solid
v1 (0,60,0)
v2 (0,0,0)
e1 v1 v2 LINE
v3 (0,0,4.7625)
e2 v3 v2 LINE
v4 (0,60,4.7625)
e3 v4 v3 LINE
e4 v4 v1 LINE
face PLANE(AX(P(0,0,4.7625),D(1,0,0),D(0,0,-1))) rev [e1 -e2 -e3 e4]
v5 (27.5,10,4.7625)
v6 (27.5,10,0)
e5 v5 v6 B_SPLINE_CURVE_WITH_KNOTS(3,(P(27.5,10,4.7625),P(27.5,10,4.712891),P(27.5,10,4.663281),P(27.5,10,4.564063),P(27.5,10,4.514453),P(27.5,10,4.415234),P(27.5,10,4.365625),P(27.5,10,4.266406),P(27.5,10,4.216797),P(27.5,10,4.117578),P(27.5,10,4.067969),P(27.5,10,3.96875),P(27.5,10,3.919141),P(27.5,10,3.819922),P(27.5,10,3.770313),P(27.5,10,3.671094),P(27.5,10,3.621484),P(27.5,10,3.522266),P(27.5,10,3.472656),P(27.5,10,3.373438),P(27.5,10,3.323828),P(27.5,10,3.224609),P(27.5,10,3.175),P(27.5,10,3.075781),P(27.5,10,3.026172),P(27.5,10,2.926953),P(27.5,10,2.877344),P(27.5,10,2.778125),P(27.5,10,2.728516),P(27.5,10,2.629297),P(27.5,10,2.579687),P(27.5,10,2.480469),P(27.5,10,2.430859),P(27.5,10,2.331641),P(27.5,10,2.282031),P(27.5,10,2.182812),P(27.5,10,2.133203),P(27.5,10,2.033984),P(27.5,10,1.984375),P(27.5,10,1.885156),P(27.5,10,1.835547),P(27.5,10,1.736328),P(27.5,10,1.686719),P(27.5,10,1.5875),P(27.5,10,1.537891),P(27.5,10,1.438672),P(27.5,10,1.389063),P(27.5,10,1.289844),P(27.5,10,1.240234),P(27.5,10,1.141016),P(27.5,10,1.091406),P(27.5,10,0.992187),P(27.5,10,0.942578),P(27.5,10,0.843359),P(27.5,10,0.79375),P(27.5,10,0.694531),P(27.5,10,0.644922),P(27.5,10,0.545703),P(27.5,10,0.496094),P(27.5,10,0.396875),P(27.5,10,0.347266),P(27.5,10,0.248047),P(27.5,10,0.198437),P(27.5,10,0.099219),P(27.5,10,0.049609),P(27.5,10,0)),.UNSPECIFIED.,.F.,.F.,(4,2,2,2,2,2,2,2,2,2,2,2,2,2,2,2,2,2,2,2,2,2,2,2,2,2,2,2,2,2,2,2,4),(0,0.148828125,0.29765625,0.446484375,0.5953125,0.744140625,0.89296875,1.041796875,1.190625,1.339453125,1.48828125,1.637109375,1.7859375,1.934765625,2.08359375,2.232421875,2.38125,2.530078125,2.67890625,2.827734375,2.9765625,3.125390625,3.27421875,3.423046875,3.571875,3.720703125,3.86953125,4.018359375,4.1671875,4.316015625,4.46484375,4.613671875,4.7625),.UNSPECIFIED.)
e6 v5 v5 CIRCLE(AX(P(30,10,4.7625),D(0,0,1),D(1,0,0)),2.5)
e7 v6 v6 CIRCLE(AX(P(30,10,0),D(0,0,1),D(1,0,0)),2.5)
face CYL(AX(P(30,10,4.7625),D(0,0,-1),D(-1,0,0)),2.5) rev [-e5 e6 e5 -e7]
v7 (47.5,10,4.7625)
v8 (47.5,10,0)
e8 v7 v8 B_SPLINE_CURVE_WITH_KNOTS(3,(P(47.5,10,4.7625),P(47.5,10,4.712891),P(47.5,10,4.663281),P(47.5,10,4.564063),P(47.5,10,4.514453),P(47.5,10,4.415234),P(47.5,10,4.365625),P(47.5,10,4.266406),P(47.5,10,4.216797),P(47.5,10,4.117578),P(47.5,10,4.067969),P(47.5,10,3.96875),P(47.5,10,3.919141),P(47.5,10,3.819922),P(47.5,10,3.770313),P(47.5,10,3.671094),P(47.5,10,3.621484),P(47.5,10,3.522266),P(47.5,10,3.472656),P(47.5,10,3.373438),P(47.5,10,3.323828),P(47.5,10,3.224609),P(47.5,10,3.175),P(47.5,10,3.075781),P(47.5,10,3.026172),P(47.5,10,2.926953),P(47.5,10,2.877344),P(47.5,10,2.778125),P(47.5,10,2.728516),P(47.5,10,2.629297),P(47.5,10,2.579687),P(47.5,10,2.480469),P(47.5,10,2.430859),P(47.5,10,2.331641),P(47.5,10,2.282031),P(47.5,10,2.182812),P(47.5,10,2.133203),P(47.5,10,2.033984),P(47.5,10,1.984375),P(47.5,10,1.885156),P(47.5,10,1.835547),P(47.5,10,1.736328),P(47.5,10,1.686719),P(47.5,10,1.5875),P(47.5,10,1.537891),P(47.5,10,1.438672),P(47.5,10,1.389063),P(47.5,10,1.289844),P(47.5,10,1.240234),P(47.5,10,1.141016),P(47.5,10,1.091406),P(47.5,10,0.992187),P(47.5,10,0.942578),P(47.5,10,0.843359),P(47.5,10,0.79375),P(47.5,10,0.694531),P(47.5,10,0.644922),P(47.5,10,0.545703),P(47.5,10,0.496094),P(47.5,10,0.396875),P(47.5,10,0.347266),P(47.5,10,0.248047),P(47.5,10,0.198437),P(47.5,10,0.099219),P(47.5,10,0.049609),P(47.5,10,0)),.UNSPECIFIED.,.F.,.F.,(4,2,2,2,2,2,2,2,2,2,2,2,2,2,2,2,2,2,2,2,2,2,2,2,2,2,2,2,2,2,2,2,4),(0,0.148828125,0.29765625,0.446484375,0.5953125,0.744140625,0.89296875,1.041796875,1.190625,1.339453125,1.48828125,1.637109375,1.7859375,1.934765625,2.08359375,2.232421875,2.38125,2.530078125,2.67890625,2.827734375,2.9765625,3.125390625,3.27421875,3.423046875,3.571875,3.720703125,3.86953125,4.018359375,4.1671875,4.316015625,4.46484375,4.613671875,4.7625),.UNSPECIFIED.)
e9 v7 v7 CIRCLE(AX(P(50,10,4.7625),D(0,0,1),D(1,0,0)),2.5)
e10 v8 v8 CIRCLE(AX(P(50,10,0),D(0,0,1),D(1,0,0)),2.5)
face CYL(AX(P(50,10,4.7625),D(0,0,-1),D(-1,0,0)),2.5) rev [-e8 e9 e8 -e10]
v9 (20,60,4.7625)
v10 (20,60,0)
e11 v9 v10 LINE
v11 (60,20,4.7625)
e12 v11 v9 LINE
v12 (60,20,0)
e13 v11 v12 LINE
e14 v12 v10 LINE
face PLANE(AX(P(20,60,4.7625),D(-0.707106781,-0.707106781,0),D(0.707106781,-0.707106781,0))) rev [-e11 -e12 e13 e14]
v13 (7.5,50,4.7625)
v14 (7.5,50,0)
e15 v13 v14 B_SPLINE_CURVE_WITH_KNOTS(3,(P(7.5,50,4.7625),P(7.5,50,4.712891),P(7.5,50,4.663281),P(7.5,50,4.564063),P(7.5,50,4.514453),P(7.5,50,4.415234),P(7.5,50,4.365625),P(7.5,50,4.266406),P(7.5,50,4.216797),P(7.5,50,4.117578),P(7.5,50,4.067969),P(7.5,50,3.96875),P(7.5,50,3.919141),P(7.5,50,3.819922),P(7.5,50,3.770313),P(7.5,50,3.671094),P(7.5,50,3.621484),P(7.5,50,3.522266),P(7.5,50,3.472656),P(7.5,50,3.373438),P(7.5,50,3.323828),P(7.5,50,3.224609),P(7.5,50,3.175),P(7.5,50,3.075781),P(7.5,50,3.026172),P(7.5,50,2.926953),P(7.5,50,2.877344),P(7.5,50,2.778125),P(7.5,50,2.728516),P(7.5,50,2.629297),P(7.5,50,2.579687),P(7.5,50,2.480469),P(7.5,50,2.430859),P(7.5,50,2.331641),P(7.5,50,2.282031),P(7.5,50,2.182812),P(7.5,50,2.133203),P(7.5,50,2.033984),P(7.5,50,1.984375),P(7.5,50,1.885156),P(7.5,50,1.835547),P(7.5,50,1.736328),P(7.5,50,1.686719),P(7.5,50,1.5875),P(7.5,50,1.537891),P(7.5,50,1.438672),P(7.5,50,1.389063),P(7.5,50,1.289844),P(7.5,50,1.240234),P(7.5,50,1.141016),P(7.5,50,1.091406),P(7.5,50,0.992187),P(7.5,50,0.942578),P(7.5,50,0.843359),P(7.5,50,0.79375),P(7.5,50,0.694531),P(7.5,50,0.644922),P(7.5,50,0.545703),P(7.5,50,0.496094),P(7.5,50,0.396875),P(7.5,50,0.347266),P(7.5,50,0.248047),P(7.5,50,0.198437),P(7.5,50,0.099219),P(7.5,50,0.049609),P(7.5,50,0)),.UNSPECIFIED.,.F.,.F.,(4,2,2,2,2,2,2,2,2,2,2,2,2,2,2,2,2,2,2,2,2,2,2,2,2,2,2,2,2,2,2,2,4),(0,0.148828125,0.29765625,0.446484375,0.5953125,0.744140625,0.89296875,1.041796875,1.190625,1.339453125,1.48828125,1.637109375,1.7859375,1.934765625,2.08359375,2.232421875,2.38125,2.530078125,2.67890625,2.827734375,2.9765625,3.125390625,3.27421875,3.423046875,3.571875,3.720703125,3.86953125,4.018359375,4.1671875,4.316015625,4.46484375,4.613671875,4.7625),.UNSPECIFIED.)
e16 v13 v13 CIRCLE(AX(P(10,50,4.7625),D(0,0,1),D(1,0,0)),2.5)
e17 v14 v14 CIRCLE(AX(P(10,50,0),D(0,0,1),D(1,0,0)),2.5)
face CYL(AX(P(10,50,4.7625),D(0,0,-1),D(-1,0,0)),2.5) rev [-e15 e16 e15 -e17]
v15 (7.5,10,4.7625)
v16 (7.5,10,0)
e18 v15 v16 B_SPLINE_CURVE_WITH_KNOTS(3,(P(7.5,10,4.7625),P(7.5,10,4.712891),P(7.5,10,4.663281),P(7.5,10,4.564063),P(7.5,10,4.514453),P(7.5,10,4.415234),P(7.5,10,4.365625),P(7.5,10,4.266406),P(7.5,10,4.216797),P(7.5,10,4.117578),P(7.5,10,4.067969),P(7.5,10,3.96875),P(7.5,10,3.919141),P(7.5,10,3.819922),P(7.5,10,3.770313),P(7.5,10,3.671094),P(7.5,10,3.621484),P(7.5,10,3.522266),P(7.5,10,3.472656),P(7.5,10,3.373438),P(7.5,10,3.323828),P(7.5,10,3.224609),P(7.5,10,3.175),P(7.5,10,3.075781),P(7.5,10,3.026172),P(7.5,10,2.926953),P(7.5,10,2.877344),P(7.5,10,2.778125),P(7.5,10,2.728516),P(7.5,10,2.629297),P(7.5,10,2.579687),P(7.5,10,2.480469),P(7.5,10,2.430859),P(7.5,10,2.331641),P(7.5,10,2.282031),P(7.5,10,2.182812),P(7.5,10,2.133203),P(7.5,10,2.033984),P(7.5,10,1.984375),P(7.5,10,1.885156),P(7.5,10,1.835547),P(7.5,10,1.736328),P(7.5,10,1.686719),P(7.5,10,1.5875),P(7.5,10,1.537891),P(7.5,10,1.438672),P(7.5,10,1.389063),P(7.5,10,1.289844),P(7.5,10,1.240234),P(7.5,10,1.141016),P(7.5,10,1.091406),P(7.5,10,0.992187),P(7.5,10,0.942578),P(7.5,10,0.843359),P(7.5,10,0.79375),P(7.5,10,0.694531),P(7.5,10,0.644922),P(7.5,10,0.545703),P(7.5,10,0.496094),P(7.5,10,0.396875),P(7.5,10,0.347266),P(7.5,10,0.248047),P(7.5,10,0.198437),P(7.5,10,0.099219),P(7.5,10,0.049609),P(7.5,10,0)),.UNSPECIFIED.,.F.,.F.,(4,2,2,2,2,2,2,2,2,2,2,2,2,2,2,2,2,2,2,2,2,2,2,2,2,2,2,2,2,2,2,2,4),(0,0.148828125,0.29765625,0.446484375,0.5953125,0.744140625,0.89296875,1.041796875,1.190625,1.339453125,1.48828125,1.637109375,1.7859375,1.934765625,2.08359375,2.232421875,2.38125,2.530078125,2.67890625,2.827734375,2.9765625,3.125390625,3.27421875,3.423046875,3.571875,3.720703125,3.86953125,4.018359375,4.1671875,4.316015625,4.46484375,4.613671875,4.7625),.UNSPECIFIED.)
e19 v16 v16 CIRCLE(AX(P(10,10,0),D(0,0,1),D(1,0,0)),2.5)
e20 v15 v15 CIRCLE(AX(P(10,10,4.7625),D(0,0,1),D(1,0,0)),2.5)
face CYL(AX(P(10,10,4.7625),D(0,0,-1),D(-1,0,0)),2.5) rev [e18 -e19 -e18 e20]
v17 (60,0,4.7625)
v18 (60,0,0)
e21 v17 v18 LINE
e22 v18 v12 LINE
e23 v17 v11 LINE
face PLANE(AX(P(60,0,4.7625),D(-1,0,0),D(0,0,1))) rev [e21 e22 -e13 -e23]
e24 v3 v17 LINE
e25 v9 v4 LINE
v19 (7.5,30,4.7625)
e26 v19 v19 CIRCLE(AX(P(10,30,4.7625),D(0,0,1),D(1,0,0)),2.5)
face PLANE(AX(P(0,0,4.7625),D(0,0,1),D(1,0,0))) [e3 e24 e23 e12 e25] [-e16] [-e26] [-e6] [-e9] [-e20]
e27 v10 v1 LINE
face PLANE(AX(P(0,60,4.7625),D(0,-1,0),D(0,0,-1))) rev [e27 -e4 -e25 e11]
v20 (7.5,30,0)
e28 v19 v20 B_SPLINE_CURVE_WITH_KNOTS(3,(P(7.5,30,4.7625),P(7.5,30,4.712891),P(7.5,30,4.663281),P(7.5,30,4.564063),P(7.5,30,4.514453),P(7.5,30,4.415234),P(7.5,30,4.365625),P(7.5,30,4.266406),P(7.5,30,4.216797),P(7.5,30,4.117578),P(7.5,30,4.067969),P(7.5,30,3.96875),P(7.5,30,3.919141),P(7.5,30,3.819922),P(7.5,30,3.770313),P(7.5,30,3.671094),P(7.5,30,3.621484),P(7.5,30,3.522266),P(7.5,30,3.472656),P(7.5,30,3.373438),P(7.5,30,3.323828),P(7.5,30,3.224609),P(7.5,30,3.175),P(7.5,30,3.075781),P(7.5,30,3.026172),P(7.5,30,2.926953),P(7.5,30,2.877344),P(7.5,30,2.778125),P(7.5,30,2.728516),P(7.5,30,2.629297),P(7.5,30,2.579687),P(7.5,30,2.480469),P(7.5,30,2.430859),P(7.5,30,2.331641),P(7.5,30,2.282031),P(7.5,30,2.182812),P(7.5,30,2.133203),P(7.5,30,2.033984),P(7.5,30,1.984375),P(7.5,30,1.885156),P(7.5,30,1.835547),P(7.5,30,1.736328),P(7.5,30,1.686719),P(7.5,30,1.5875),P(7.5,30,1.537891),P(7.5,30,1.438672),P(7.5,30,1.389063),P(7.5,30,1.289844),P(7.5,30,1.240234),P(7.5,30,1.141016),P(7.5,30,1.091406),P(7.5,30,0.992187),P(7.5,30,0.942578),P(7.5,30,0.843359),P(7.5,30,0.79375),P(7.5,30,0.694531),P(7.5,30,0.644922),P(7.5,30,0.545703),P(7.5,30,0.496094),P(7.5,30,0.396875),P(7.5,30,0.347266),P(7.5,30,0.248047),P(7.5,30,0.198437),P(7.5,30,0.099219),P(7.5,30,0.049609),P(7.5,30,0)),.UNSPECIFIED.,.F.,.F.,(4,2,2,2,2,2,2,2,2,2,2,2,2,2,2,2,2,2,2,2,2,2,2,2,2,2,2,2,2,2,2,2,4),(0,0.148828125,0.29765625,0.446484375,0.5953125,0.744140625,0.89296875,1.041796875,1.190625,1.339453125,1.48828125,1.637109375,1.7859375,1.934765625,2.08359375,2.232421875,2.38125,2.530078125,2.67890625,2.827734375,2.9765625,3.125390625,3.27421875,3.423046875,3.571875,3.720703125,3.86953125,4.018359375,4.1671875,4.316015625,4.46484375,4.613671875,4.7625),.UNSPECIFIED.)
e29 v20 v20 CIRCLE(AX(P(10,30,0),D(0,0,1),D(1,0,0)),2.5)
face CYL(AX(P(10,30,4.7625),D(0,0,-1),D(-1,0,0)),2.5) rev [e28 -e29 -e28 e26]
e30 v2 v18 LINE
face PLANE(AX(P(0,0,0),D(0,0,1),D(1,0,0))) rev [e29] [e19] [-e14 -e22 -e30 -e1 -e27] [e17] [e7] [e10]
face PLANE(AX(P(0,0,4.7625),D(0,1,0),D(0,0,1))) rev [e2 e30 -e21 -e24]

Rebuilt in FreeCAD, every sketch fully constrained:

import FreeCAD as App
import Part
import Sketcher

doc = App.newDocument("Part")
params = doc.addObject("Spreadsheet::Sheet", "Params")
for row, (alias, value) in enumerate([
    ("sketch1_diameter", "5 mm"),
    ("sketch1_width", "60 mm"),
    ("sketch1_width2", "20 mm"),
    ("pad1_length", "4.7625 mm"),
], start=1):
    params.set(f"A{row}", alias)
    params.set(f"B{row}", "=" + value)
    params.setAlias(f"B{row}", alias)

body = doc.addObject("PartDesign::Body", "Body")

sketch1 = body.newObject("Sketcher::SketchObject", "Sketch")
sketch1.AttachmentSupport = (doc.getObject("XY_Plane"), [""])
sketch1.MapMode = "FlatFace"
sketch1.addGeometry([
    Part.LineSegment(App.Vector(0, 60, 0), App.Vector(0, 0, 0)),
    Part.LineSegment(App.Vector(0, 0, 0), App.Vector(60, 0, 0)),
    Part.LineSegment(App.Vector(60, 0, 0), App.Vector(60, 20, 0)),
    Part.LineSegment(App.Vector(60, 20, 0), App.Vector(20, 60, 0)),
    Part.LineSegment(App.Vector(20, 60, 0), App.Vector(0, 60, 0)),
    Part.Circle(App.Vector(50, 10, 0), App.Vector(0, 0, 1), 2.5),
    Part.Circle(App.Vector(30, 10, 0), App.Vector(0, 0, 1), 2.5),
    Part.Circle(App.Vector(10, 10, 0), App.Vector(0, 0, 1), 2.5),
    Part.Circle(App.Vector(10, 30, 0), App.Vector(0, 0, 1), 2.5),
    Part.Circle(App.Vector(10, 50, 0), App.Vector(0, 0, 1), 2.5),
], False)
sketch1.addConstraint([
    Sketcher.Constraint("Coincident", 0, 2, 1, 1),
    Sketcher.Constraint("Coincident", 1, 2, 2, 1),
    Sketcher.Constraint("Coincident", 2, 2, 3, 1),
    Sketcher.Constraint("Coincident", 3, 2, 4, 1),
    Sketcher.Constraint("Coincident", 4, 2, 0, 1),
    Sketcher.Constraint("Vertical", 0),
    Sketcher.Constraint("Horizontal", 1),
    Sketcher.Constraint("Vertical", 2),
    Sketcher.Constraint("Horizontal", 4),
    Sketcher.Constraint("Coincident", 0, 2, -1, 1),
    Sketcher.Constraint("Equal", 5, 6),
    Sketcher.Constraint("Equal", 6, 7),
    Sketcher.Constraint("Equal", 7, 8),
    Sketcher.Constraint("Equal", 8, 9),
    Sketcher.Constraint("Horizontal", 5, 3, 6, 3),
    Sketcher.Constraint("Horizontal", 6, 3, 7, 3),
    Sketcher.Constraint("Vertical", 7, 3, 8, 3),
    Sketcher.Constraint("Vertical", 8, 3, 9, 3),
    Sketcher.Constraint("Equal", 1, 0),
    Sketcher.Constraint("Equal", 4, 2),
    Sketcher.Constraint("Diameter", 5, 5.0),
    Sketcher.Constraint("DistanceX", 1, 1, 1, 2, 60.0),
    Sketcher.Constraint("DistanceX", 4, 2, 4, 1, 20.0),
    Sketcher.Constraint("DistanceX", -1, 1, 5, 3, 50.0),
    Sketcher.Constraint("DistanceY", -1, 1, 5, 3, 10.0),
    Sketcher.Constraint("DistanceX", -1, 1, 6, 3, 30.0),
    Sketcher.Constraint("DistanceX", -1, 1, 7, 3, 10.0),
    Sketcher.Constraint("DistanceY", -1, 1, 8, 3, 30.0),
    Sketcher.Constraint("DistanceY", -1, 1, 9, 3, 50.0),
])
sketch1.setExpression("Constraints[20]", "Params.sketch1_diameter")
sketch1.setExpression("Constraints[21]", "Params.sketch1_width")
sketch1.setExpression("Constraints[22]", "Params.sketch1_width2")
pad1 = body.newObject("PartDesign::Pad", "Pad")
pad1.Profile = sketch1
pad1.setExpression("Length", "Params.pad1_length")

doc.recompute()
